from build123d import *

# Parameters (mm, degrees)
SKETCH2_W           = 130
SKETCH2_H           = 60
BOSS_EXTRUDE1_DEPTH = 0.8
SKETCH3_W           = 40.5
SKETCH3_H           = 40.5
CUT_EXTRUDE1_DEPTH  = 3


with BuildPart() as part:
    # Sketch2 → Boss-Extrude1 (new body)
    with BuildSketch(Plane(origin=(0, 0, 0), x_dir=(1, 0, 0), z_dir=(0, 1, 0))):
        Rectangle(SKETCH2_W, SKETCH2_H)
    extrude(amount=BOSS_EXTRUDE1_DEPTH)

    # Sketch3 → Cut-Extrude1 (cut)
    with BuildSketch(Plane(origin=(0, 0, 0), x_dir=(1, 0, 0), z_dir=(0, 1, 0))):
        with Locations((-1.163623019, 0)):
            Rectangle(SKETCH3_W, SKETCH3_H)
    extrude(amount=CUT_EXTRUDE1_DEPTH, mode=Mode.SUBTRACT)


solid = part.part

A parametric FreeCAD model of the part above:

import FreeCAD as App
import Part
import Sketcher

V = App.Vector
Q = App.Units.Quantity


def add_polygon(sketch, points):
    """Adds a closed chain of lines whose ends are joined by coincident constraints."""
    first, n = sketch.GeometryCount, len(points)
    for a, b in zip(points, points[1:] + points[:1]):
        sketch.addGeometry(Part.LineSegment(App.Vector(*a, 0), App.Vector(*b, 0)), False)
    for i in range(n):
        sketch.addConstraint(Sketcher.Constraint("Coincident", first + i, 2, first + (i + 1) % n, 1))

doc = App.newDocument("Part")
params = doc.addObject("Spreadsheet::Sheet", "Params")
for row, (alias, value) in enumerate([
    ("sketch1_width", "130 mm"),
    ("sketch1_height", "60 mm"),
    ("pad1_length", "0.8 mm"),
    ("sketch2_width", "40.5 mm"),
    ("pocket1_length", "3 mm"),
], start=1):
    params.set(f"A{row}", alias)
    params.set(f"B{row}", "=" + value)
    params.setAlias(f"B{row}", alias)

body = doc.addObject("PartDesign::Body", "Body")

# Sketch on XZ plane
sketch1 = body.newObject("Sketcher::SketchObject", "Sketch")
sketch1.AttachmentSupport = (doc.getObject("XZ_Plane"), [""])
sketch1.MapMode = "FlatFace"
add_polygon(sketch1, [(-65, -30), (-65, 30), (65, 30), (65, -30)])  # lines 0-3
sketch1.addConstraint(Sketcher.Constraint("Vertical", 0))
sketch1.addConstraint(Sketcher.Constraint("Horizontal", 1))
sketch1.addConstraint(Sketcher.Constraint("Vertical", 2))
sketch1.addConstraint(Sketcher.Constraint("Horizontal", 3))
sketch1.addConstraint(Sketcher.Constraint("Symmetric", 0, 2, 2, 2, -1, 1))
sketch1.addConstraint(Sketcher.Constraint("DistanceX", 1, 1, 1, 2, Q("130 mm")))
sketch1.addConstraint(Sketcher.Constraint("DistanceY", 0, 1, 0, 2, Q("60 mm")))
sketch1.setExpression("Constraints[9]", "Params.sketch1_width")
sketch1.setExpression("Constraints[10]", "Params.sketch1_height")
pad1 = body.newObject("PartDesign::Pad", "Pad")
pad1.Profile = sketch1
pad1.setExpression("Length", "Params.pad1_length")
pad1.Reversed = True

# Sketch on XZ plane
sketch2 = body.newObject("Sketcher::SketchObject", "Sketch001")
sketch2.AttachmentSupport = (doc.getObject("XZ_Plane"), [""])
sketch2.MapMode = "FlatFace"
add_polygon(sketch2, [(-21.413623, -20.25), (-21.413623, 20.25), (19.086377, 20.25), (19.086377, -20.25)])  # lines 0-3
sketch2.addConstraint(Sketcher.Constraint("Vertical", 0))
sketch2.addConstraint(Sketcher.Constraint("Horizontal", 1))
sketch2.addConstraint(Sketcher.Constraint("Vertical", 2))
sketch2.addConstraint(Sketcher.Constraint("Horizontal", 3))
sketch2.addConstraint(Sketcher.Constraint("Equal", 3, 0))
sketch2.addConstraint(Sketcher.Constraint("DistanceX", 1, 1, 1, 2, Q("40.5 mm")))
sketch2.addConstraint(Sketcher.Constraint("DistanceY", -1, 1, 0, 2, Q("20.25 mm")))
sketch2.addConstraint(Sketcher.Constraint("DistanceX", 0, 2, -1, 1, Q("21.413623 mm")))
sketch2.setExpression("Constraints[9]", "Params.sketch2_width")
pocket1 = body.newObject("PartDesign::Pocket", "Pocket")
pocket1.Profile = sketch2
pocket1.setExpression("Length", "Params.pocket1_length")

doc.recompute()
